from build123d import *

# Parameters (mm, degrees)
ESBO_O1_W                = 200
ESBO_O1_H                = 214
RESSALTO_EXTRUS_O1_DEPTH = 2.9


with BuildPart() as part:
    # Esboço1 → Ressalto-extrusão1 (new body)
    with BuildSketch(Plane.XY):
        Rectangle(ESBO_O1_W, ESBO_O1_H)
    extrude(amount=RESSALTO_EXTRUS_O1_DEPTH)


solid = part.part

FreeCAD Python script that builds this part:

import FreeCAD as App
import Part
import Sketcher

V = App.Vector
Q = App.Units.Quantity


def add_polygon(sketch, points):
    """Adds a closed chain of lines whose ends are joined by coincident constraints."""
    first, n = sketch.GeometryCount, len(points)
    for a, b in zip(points, points[1:] + points[:1]):
        sketch.addGeometry(Part.LineSegment(App.Vector(*a, 0), App.Vector(*b, 0)), False)
    for i in range(n):
        sketch.addConstraint(Sketcher.Constraint("Coincident", first + i, 2, first + (i + 1) % n, 1))

doc = App.newDocument("Part")
params = doc.addObject("Spreadsheet::Sheet", "Params")
for row, (alias, value) in enumerate([
    ("sketch1_width", "200 mm"),
    ("sketch1_height", "214 mm"),
    ("pad1_length", "2.9 mm"),
], start=1):
    params.set(f"A{row}", alias)
    params.set(f"B{row}", "=" + value)
    params.setAlias(f"B{row}", alias)

body = doc.addObject("PartDesign::Body", "Body")

# Sketch on XY plane
sketch1 = doc.addObject("Sketcher::SketchObject", "Sketch")
body.addObject(sketch1)
sketch1.AttachmentSupport = (doc.XY_Plane, [""])
sketch1.MapMode = "FlatFace"
add_polygon(sketch1, [(-100, 107), (-100, -107), (100, -107), (100, 107)])  # lines 0-3
sketch1.addConstraint([
    Sketcher.Constraint("Vertical", 0),
    Sketcher.Constraint("Horizontal", 1),
    Sketcher.Constraint("Vertical", 2),
    Sketcher.Constraint("Horizontal", 3),
    Sketcher.Constraint("Symmetric", 0, 2, 2, 2, -1, 1),
    Sketcher.Constraint("DistanceX", 1, 1, 1, 2, Q("200 mm")),
    Sketcher.Constraint("DistanceY", 0, 2, 0, 1, Q("214 mm")),
])
sketch1.setExpression("Constraints[9]", "Params.sketch1_width")
sketch1.setExpression("Constraints[10]", "Params.sketch1_height")
pad1 = doc.addObject("PartDesign::Pad", "Pad")
body.addObject(pad1)
pad1.Profile = sketch1
pad1.setExpression("Length", "Params.pad1_length")

doc.recompute()
